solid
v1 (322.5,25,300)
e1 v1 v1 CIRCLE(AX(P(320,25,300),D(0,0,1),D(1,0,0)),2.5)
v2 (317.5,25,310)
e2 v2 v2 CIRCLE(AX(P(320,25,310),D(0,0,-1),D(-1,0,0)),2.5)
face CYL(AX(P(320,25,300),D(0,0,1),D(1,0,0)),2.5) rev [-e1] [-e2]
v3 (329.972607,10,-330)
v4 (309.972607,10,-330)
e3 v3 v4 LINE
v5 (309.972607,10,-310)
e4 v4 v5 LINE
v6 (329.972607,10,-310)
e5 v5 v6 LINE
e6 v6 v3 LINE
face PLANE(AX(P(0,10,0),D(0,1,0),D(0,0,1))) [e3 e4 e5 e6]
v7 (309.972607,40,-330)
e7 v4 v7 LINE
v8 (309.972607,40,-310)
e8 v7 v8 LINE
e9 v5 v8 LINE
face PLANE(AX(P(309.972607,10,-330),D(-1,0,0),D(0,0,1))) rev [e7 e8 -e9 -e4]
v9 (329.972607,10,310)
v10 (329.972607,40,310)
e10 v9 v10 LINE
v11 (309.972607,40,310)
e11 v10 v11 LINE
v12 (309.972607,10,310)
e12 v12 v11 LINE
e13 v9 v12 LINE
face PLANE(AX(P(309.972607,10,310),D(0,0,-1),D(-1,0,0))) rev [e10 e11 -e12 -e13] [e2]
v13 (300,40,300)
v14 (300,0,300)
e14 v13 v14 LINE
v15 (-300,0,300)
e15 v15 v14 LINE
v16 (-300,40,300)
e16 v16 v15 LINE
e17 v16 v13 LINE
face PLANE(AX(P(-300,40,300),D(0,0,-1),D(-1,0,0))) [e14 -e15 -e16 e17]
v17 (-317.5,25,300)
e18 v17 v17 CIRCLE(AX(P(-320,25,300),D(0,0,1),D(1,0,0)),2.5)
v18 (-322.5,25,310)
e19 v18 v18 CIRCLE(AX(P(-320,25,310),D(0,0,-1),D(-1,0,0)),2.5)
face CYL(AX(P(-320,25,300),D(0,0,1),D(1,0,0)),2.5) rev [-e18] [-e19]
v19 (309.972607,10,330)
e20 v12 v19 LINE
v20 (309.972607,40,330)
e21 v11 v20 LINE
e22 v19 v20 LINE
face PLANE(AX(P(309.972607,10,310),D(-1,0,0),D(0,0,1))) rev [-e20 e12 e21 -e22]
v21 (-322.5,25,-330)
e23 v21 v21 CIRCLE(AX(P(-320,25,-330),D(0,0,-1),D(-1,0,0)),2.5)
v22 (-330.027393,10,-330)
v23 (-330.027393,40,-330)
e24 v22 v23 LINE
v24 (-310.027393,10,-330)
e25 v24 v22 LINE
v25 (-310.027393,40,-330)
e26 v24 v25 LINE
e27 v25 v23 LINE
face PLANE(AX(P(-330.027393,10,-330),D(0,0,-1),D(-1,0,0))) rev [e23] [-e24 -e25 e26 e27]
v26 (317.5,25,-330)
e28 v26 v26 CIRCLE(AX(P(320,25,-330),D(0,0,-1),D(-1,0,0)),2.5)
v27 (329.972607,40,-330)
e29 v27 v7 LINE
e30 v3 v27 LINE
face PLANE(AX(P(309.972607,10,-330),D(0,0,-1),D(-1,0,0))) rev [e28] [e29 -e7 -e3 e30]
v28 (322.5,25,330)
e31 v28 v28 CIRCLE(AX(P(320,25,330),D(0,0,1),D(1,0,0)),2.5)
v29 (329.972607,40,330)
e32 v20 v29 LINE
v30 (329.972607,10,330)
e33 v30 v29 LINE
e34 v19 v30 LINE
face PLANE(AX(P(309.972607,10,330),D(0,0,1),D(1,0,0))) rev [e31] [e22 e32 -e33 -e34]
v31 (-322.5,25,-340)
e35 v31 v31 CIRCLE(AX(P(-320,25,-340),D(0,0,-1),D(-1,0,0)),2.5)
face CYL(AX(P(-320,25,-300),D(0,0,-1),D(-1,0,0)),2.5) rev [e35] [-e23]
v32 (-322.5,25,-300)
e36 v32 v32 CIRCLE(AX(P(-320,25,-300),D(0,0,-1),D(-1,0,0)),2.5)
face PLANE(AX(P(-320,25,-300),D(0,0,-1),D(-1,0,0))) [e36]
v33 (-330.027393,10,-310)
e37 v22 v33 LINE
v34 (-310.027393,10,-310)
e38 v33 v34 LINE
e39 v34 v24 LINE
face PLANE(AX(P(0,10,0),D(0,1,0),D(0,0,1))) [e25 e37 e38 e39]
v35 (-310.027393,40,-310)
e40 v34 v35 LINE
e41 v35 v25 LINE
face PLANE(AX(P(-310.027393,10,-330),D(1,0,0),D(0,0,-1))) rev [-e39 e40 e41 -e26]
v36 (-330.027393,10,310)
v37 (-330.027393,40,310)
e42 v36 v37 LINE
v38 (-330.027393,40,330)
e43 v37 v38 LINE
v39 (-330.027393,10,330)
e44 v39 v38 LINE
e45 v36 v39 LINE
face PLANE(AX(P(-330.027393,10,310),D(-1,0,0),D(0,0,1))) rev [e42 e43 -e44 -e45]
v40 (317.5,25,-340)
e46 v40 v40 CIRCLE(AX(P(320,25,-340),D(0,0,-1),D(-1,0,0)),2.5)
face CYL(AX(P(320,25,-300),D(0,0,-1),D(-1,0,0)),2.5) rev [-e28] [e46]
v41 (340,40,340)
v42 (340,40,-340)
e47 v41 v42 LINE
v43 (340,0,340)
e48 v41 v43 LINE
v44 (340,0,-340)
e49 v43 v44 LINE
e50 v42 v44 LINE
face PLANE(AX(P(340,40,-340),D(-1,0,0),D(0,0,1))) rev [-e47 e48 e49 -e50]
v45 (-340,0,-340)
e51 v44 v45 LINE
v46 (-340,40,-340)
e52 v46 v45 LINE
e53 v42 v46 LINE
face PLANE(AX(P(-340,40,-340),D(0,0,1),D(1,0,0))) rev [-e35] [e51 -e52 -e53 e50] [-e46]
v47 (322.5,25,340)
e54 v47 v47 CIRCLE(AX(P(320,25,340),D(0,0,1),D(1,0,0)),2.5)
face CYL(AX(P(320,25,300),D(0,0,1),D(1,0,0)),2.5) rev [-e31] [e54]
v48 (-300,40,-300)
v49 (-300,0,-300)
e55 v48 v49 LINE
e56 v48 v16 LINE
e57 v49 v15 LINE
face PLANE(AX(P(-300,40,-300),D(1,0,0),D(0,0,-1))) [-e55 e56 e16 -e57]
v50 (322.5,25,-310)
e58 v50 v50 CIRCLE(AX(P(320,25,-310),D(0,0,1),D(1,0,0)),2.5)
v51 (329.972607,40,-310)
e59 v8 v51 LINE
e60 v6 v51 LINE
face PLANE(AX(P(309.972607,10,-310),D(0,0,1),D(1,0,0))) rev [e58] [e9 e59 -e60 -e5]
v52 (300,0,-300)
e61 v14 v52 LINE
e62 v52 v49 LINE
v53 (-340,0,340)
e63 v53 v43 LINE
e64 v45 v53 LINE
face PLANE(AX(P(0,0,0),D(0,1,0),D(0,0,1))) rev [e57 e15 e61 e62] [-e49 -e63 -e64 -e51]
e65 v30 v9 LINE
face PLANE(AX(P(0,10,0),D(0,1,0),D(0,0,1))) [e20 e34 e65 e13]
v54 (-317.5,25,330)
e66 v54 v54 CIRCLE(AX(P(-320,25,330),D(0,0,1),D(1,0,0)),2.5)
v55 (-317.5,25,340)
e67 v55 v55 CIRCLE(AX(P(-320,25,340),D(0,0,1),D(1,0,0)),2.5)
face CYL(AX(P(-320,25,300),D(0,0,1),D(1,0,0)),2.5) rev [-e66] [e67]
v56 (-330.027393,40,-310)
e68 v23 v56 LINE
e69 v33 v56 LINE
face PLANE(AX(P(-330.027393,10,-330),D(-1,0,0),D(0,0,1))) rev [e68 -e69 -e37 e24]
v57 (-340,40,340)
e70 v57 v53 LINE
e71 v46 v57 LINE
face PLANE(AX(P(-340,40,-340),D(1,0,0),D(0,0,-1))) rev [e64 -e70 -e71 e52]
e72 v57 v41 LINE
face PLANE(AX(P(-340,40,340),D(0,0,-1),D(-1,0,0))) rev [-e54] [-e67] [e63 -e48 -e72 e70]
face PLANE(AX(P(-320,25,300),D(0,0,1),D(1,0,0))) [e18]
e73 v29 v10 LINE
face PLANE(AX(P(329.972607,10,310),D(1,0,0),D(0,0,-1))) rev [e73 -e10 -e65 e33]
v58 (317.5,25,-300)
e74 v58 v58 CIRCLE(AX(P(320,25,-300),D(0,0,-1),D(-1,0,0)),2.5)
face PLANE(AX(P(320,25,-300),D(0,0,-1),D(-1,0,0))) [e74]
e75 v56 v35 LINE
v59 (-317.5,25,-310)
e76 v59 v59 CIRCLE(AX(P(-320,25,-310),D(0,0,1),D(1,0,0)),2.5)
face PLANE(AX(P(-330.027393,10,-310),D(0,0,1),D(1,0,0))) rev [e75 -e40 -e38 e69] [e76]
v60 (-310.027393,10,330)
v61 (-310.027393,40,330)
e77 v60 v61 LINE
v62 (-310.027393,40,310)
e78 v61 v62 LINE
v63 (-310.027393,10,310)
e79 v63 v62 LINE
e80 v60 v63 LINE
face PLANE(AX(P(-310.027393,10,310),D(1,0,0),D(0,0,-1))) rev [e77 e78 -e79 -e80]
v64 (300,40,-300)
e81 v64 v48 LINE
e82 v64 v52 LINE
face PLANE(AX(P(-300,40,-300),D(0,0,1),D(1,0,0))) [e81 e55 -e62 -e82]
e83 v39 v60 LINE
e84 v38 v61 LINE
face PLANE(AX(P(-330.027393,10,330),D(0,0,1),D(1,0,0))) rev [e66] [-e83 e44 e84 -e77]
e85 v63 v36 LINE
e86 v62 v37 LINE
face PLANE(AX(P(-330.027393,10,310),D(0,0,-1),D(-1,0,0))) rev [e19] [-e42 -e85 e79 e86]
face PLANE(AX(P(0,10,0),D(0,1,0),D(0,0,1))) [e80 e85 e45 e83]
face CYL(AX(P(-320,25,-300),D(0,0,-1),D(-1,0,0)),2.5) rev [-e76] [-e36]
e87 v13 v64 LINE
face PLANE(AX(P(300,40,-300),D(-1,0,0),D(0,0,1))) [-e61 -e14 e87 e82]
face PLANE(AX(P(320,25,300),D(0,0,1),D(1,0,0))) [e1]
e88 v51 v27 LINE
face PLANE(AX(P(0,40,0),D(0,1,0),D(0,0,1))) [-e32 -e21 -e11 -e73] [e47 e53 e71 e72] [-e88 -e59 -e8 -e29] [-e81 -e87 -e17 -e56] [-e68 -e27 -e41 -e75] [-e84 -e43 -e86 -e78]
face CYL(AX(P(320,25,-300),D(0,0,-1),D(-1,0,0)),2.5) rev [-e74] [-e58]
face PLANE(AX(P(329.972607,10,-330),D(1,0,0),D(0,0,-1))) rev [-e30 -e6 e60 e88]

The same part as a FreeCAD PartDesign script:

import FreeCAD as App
import Part
import Sketcher

V = App.Vector
Q = App.Units.Quantity

doc = App.newDocument("Part")
body = doc.addObject("PartDesign::Body", "Body")

# Sketch on XZ plane
sketch1 = body.newObject("Sketcher::SketchObject", "Sketch")
sketch1.AttachmentSupport = (doc.getObject("XZ_Plane"), [""])
sketch1.MapMode = "FlatFace"
sketch1.addGeometry([
    Part.LineSegment(V(-340, -340, 0), V(-340, 340, 0)),  # 0
    Part.LineSegment(V(-340, 340, 0), V(340, 340, 0)),  # 1
    Part.LineSegment(V(340, 340, 0), V(340, -340, 0)),  # 2
    Part.LineSegment(V(340, -340, 0), V(-340, -340, 0)),  # 3
    Part.LineSegment(V(300, 300, 0), V(-300, 300, 0)),  # 4
    Part.LineSegment(V(-300, 300, 0), V(-300, -300, 0)),  # 5
    Part.LineSegment(V(-300, -300, 0), V(300, -300, 0)),  # 6
    Part.LineSegment(V(300, -300, 0), V(300, 300, 0)),  # 7
], False)
sketch1.addConstraint([
    Sketcher.Constraint("Coincident", 0, 2, 1, 1),
    Sketcher.Constraint("Coincident", 1, 2, 2, 1),
    Sketcher.Constraint("Coincident", 2, 2, 3, 1),
    Sketcher.Constraint("Coincident", 3, 2, 0, 1),
    Sketcher.Constraint("Coincident", 4, 2, 5, 1),
    Sketcher.Constraint("Coincident", 5, 2, 6, 1),
    Sketcher.Constraint("Coincident", 6, 2, 7, 1),
    Sketcher.Constraint("Coincident", 7, 2, 4, 1),
    Sketcher.Constraint("Vertical", 0),
    Sketcher.Constraint("Horizontal", 1),
    Sketcher.Constraint("Vertical", 2),
    Sketcher.Constraint("Horizontal", 3),
    Sketcher.Constraint("Horizontal", 4),
    Sketcher.Constraint("Vertical", 5),
    Sketcher.Constraint("Horizontal", 6),
    Sketcher.Constraint("Vertical", 7),
    Sketcher.Constraint("Symmetric", 0, 2, 2, 2, -1, 1),
    Sketcher.Constraint("Symmetric", 4, 2, 6, 2, -1, 1),
    Sketcher.Constraint("Equal", 3, 0),
    Sketcher.Constraint("Equal", 6, 5),
    Sketcher.Constraint("DistanceX", 1, 1, 1, 2, Q("680 mm")),
    Sketcher.Constraint("DistanceX", 4, 2, 4, 1, Q("600 mm")),
])
pad1 = body.newObject("PartDesign::Pad", "Pad")
pad1.Profile = sketch1
pad1.Length = 40
pad1.Reversed = True

# Sketch on XZ plane
sketch2 = body.newObject("Sketcher::SketchObject", "Sketch001")
sketch2.AttachmentSupport = (doc.getObject("XZ_Plane"), [""])
sketch2.MapMode = "FlatFace"
sketch2.AttachmentOffset = App.Placement(V(0, 0, -40), App.Rotation())
sketch2.addGeometry([
    Part.LineSegment(V(-330.027393, -330, 0), V(-330.027393, -310, 0)),  # 0
    Part.LineSegment(V(-330.027393, -310, 0), V(-310.027393, -310, 0)),  # 1
    Part.LineSegment(V(-310.027393, -310, 0), V(-310.027393, -330, 0)),  # 2
    Part.LineSegment(V(-310.027393, -330, 0), V(-330.027393, -330, 0)),  # 3
    Part.LineSegment(V(309.972607, -330, 0), V(309.972607, -310, 0)),  # 4
    Part.LineSegment(V(309.972607, -310, 0), V(329.972607, -310, 0)),  # 5
    Part.LineSegment(V(329.972607, -310, 0), V(329.972607, -330, 0)),  # 6
    Part.LineSegment(V(329.972607, -330, 0), V(309.972607, -330, 0)),  # 7
    Part.LineSegment(V(309.972607, 310, 0), V(309.972607, 330, 0)),  # 8
    Part.LineSegment(V(309.972607, 330, 0), V(329.972607, 330, 0)),  # 9
    Part.LineSegment(V(329.972607, 330, 0), V(329.972607, 310, 0)),  # 10
    Part.LineSegment(V(329.972607, 310, 0), V(309.972607, 310, 0)),  # 11
    Part.LineSegment(V(-330.027393, 310, 0), V(-330.027393, 330, 0)),  # 12
    Part.LineSegment(V(-330.027393, 330, 0), V(-310.027393, 330, 0)),  # 13
    Part.LineSegment(V(-310.027393, 330, 0), V(-310.027393, 310, 0)),  # 14
    Part.LineSegment(V(-310.027393, 310, 0), V(-330.027393, 310, 0)),  # 15
], False)
sketch2.addConstraint([
    Sketcher.Constraint("Coincident", 0, 2, 1, 1),
    Sketcher.Constraint("Coincident", 1, 2, 2, 1),
    Sketcher.Constraint("Coincident", 2, 2, 3, 1),
    Sketcher.Constraint("Coincident", 3, 2, 0, 1),
    Sketcher.Constraint("Coincident", 4, 2, 5, 1),
    Sketcher.Constraint("Coincident", 5, 2, 6, 1),
    Sketcher.Constraint("Coincident", 6, 2, 7, 1),
    Sketcher.Constraint("Coincident", 7, 2, 4, 1),
    Sketcher.Constraint("Coincident", 8, 2, 9, 1),
    Sketcher.Constraint("Coincident", 9, 2, 10, 1),
    Sketcher.Constraint("Coincident", 10, 2, 11, 1),
    Sketcher.Constraint("Coincident", 11, 2, 8, 1),
    Sketcher.Constraint("Coincident", 12, 2, 13, 1),
    Sketcher.Constraint("Coincident", 13, 2, 14, 1),
    Sketcher.Constraint("Coincident", 14, 2, 15, 1),
    Sketcher.Constraint("Coincident", 15, 2, 12, 1),
    Sketcher.Constraint("Vertical", 0),
    Sketcher.Constraint("Horizontal", 1),
    Sketcher.Constraint("Vertical", 2),
    Sketcher.Constraint("Horizontal", 3),
    Sketcher.Constraint("Vertical", 4),
    Sketcher.Constraint("Horizontal", 5),
    Sketcher.Constraint("Vertical", 6),
    Sketcher.Constraint("Horizontal", 7),
    Sketcher.Constraint("Vertical", 8),
    Sketcher.Constraint("Horizontal", 9),
    Sketcher.Constraint("Vertical", 10),
    Sketcher.Constraint("Horizontal", 11),
    Sketcher.Constraint("Vertical", 12),
    Sketcher.Constraint("Horizontal", 13),
    Sketcher.Constraint("Vertical", 14),
    Sketcher.Constraint("Horizontal", 15),
    Sketcher.Constraint("Symmetric", 7, 2, 8, 2, -1),
    Sketcher.Constraint("Symmetric", 5, 2, 10, 2, -1),
    Sketcher.Constraint("Symmetric", 3, 2, 12, 2, -1),
    Sketcher.Constraint("Symmetric", 1, 2, 14, 2, -1),
    Sketcher.Constraint("Horizontal", 1, 2, 4, 2),
    Sketcher.Constraint("Horizontal", 3, 2, 6, 2),
    Sketcher.Constraint("Equal", 3, 5),
    Sketcher.Constraint("Equal", 15, 0),
    Sketcher.Constraint("DistanceX", 1, 1, 1, 2, Q("20 mm")),
    Sketcher.Constraint("DistanceY", 0, 2, -1, 1, Q("310 mm")),
    Sketcher.Constraint("DistanceX", 1, 2, 4, 2, Q("620 mm")),
    Sketcher.Constraint("DistanceX", 0, 2, -1, 1, Q("330.027393 mm")),
])
pocket1 = body.newObject("PartDesign::Pocket", "Pocket")
pocket1.Profile = sketch2
pocket1.Length = 30
pocket1.Reversed = True

# Sketch on XY plane
sketch3 = body.newObject("Sketcher::SketchObject", "Sketch002")
sketch3.AttachmentSupport = (doc.getObject("XY_Plane"), [""])
sketch3.MapMode = "FlatFace"
sketch3.AttachmentOffset = App.Placement(V(0, 0, -340), App.Rotation())
sketch3.addGeometry([
    Part.Circle(V(-320, 25, 0), V(0, 0, 1), 2.5),
    Part.Circle(V(320, 25, 0), V(0, 0, 1), 2.5),
], False)
sketch3.addConstraint([
    Sketcher.Constraint("Equal", 0, 1),
    Sketcher.Constraint("Symmetric", 0, 3, 1, 3, -2),
    Sketcher.Constraint("Diameter", 0, Q("5 mm")),
    Sketcher.Constraint("DistanceX", 0, 3, -1, 1, Q("320 mm")),
    Sketcher.Constraint("DistanceY", -1, 1, 0, 3, Q("25 mm")),
])
pocket2 = body.newObject("PartDesign::Pocket", "Pocket001")
pocket2.Profile = sketch3
pocket2.Length = 40
pocket2.Reversed = True

# Sketch on XY plane
sketch4 = body.newObject("Sketcher::SketchObject", "Sketch003")
sketch4.AttachmentSupport = (doc.getObject("XY_Plane"), [""])
sketch4.MapMode = "FlatFace"
sketch4.AttachmentOffset = App.Placement(V(0, 0, 300), App.Rotation())
sketch4.addGeometry([
    Part.Circle(V(-320, 25, 0), V(0, 0, 1), 2.5),
    Part.Circle(V(320, 25, 0), V(0, 0, 1), 2.5),
], False)
sketch4.addConstraint([
    Sketcher.Constraint("Equal", 0, 1),
    Sketcher.Constraint("Symmetric", 0, 3, 1, 3, -2),
    Sketcher.Constraint("Diameter", 0, Q("5 mm")),
    Sketcher.Constraint("DistanceX", 0, 3, -1, 1, Q("320 mm")),
    Sketcher.Constraint("DistanceY", -1, 1, 0, 3, Q("25 mm")),
])
pocket3 = body.newObject("PartDesign::Pocket", "Pocket002")
pocket3.Profile = sketch4
pocket3.Length = 40
pocket3.Reversed = True

doc.recompute()
